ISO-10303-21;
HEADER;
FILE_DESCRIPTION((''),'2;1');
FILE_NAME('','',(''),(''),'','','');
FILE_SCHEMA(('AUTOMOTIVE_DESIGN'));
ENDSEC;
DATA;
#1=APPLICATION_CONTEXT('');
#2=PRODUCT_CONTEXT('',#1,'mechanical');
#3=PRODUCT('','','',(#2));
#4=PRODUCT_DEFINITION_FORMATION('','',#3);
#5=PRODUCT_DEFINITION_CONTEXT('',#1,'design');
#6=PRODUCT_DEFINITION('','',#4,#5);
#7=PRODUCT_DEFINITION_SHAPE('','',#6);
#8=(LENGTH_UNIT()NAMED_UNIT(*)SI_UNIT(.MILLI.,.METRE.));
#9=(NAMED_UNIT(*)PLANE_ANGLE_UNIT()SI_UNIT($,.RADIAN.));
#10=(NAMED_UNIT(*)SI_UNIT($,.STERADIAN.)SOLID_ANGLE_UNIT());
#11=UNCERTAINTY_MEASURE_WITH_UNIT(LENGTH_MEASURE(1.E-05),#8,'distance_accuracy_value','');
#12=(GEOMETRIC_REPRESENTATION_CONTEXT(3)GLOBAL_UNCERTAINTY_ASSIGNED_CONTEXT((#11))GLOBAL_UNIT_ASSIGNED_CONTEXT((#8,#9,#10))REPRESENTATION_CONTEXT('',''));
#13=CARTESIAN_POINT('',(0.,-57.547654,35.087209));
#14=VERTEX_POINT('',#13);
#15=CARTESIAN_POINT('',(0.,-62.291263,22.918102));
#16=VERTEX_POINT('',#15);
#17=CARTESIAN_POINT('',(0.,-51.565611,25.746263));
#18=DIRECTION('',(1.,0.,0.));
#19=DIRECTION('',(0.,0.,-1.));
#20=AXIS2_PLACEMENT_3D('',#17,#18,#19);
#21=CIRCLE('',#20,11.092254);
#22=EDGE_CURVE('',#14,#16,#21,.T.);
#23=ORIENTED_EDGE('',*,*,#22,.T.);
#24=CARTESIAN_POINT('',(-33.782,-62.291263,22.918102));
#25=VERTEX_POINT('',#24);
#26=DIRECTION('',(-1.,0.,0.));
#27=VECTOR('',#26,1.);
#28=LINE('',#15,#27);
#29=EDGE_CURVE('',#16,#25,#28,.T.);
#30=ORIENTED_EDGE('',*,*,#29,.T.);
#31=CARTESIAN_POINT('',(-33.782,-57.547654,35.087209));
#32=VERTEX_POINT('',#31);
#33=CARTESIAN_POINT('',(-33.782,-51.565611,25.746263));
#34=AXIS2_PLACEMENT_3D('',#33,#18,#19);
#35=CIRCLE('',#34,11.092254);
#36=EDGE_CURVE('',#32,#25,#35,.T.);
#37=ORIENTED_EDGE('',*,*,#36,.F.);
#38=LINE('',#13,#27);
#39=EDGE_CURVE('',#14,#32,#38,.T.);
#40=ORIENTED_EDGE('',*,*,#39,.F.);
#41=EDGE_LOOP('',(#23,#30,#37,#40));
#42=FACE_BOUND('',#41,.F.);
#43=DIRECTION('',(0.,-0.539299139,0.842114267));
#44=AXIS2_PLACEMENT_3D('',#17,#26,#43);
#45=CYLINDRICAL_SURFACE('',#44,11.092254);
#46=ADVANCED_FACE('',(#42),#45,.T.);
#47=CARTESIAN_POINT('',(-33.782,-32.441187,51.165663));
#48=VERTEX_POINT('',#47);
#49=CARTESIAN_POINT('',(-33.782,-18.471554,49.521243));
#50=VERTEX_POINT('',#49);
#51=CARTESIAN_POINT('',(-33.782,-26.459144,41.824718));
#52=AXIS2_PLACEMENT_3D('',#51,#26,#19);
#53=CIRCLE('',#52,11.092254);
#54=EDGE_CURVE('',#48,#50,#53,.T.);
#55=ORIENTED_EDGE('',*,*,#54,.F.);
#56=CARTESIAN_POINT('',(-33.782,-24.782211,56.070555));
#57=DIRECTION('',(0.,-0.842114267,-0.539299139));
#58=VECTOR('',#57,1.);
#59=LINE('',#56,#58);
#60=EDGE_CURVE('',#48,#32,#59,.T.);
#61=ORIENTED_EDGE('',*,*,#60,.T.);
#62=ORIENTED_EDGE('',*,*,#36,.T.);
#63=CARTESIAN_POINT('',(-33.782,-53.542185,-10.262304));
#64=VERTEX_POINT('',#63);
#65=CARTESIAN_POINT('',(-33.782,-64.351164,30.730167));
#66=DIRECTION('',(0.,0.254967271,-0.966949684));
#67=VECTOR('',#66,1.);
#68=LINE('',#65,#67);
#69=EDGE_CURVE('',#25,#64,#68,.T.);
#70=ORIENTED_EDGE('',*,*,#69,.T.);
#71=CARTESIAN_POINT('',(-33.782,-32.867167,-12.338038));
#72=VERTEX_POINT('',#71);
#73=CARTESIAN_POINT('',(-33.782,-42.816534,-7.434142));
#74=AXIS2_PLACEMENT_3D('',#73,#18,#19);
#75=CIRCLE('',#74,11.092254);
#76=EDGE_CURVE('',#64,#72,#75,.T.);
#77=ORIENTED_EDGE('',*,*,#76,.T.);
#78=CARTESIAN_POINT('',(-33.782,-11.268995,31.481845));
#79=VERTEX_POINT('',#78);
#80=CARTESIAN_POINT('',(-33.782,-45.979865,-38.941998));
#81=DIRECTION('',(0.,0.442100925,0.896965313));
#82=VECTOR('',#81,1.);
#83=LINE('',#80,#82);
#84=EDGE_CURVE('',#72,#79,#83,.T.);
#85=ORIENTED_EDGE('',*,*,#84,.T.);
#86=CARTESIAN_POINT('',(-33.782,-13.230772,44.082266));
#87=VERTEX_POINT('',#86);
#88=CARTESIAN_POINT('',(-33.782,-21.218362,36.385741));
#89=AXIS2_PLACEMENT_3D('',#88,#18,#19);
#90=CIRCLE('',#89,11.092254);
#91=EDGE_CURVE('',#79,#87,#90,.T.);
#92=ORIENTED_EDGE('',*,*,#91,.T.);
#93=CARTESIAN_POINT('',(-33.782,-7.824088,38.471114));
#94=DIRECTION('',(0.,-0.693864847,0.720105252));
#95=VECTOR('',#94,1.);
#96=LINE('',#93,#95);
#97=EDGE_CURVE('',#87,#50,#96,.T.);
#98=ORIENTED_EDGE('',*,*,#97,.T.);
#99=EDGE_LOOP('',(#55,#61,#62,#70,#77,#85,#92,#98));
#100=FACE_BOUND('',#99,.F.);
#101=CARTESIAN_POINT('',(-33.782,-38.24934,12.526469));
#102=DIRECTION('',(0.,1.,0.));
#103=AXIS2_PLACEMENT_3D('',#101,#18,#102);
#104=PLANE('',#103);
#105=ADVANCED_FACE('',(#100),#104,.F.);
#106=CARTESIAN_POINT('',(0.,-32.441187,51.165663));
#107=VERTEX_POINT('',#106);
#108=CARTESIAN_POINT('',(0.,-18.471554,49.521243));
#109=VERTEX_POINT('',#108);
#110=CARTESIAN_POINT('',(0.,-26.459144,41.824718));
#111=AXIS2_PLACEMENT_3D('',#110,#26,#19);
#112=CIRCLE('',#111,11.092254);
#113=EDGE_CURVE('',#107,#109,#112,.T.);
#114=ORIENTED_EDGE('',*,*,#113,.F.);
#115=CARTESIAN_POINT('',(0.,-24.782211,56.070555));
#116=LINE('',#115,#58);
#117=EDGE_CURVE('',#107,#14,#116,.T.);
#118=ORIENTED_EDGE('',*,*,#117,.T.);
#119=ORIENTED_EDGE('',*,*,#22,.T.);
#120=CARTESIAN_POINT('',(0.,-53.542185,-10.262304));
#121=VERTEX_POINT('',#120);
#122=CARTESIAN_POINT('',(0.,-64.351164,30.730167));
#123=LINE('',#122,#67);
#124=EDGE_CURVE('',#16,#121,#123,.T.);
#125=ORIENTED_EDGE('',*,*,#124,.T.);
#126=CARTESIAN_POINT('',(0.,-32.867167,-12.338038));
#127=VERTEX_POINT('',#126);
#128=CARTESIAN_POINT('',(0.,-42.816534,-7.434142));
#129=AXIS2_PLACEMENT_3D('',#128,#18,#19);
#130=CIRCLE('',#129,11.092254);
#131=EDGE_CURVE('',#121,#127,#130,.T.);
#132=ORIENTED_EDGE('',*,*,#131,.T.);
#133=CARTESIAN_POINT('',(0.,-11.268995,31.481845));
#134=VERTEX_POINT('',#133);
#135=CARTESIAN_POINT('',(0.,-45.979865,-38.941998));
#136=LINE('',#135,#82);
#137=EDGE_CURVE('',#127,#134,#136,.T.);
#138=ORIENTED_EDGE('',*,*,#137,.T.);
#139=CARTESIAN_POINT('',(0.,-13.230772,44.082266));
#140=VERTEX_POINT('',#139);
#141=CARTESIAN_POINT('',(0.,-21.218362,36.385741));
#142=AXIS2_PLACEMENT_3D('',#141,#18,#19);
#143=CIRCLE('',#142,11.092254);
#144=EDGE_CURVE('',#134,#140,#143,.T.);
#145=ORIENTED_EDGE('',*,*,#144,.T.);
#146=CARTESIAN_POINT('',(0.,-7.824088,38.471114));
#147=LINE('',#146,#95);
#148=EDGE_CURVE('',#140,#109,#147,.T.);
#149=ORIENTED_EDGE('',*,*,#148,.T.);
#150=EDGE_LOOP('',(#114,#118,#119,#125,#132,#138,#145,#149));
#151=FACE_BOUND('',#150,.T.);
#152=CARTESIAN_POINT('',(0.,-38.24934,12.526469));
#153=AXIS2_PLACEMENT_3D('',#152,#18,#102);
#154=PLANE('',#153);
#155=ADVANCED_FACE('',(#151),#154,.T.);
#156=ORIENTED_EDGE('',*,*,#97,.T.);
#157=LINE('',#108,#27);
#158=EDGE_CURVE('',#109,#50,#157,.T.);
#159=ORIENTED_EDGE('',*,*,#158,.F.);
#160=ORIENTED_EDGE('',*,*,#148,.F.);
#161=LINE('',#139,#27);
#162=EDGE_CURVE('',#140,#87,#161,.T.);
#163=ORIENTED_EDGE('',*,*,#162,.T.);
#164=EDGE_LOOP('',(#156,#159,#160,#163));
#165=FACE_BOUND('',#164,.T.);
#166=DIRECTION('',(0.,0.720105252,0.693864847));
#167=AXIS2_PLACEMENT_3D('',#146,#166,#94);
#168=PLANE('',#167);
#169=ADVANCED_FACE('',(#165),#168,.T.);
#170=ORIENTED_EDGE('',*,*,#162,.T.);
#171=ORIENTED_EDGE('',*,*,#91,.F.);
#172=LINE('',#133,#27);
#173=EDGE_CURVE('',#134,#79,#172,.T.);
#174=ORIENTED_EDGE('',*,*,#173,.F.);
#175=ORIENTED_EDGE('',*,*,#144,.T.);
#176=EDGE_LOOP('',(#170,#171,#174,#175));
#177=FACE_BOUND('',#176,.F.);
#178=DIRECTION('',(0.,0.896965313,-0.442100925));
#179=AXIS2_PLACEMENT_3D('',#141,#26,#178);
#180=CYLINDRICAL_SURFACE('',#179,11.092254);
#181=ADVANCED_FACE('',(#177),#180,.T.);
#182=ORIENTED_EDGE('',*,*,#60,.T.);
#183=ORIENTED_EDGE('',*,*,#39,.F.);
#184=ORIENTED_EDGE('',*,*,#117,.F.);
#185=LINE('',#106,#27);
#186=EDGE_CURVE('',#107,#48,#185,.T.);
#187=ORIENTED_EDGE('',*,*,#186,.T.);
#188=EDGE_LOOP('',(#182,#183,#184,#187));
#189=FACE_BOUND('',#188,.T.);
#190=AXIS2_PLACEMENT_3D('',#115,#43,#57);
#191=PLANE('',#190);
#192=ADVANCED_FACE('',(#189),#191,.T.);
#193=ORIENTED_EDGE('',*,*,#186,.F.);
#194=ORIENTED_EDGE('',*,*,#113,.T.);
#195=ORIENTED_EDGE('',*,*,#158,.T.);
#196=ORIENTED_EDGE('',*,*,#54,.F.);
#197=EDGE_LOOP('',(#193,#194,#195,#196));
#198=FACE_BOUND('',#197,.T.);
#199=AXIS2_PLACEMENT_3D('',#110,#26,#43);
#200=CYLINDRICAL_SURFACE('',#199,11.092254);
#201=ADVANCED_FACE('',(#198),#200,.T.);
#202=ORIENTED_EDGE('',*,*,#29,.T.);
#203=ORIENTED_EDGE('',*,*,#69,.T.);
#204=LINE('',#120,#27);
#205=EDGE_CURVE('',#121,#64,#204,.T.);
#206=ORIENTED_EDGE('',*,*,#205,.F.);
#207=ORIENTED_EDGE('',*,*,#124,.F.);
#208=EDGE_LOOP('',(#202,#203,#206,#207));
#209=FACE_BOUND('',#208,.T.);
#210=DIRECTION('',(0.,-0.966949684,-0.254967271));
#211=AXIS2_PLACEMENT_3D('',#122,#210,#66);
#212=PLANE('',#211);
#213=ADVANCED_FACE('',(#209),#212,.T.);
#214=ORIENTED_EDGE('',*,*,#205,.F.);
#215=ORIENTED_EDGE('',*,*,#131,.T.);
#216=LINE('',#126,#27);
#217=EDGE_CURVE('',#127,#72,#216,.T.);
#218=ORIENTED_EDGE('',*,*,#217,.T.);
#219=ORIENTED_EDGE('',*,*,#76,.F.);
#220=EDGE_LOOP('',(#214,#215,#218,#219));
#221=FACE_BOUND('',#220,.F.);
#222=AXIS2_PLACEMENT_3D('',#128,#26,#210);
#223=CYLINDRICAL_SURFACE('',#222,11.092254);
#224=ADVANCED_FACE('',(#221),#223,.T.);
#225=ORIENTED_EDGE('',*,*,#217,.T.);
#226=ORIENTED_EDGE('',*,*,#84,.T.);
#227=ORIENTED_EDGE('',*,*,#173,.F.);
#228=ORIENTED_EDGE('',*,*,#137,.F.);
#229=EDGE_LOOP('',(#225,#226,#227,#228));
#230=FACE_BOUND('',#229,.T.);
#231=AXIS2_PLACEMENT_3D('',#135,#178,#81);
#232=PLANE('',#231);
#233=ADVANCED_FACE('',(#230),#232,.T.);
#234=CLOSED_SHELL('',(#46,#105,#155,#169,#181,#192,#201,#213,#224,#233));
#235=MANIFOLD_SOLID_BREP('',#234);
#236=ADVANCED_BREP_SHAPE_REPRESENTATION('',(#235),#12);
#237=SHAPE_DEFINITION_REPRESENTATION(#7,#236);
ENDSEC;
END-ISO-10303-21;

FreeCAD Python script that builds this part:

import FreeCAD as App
import Part
import Sketcher

V = App.Vector


def edges_at(feature, points):
    """Names of the edges that pass closest to the given points."""
    edges = feature.Shape.Edges
    near = lambda p: min(range(len(edges)), key=lambda i: edges[i].distToShape(Part.Vertex(*p))[0])
    return sorted({f"Edge{near(p) + 1}" for p in points})

doc = App.newDocument("Part")
params = doc.addObject("Spreadsheet::Sheet", "Params")
for row, (alias, value) in enumerate([
    ("pad1_length", "1.33 in"),
    ("fillet_radius", "11.092254 mm"),
], start=1):
    params.set(f"A{row}", alias)
    params.set(f"B{row}", "=" + value)
    params.setAlias(f"B{row}", alias)

body = doc.addObject("PartDesign::Body", "Body")

# Sketch on YZ plane
sketch1 = body.newObject("Sketcher::SketchObject", "Sketch")
sketch1.AttachmentSupport = (doc.getObject("YZ_Plane"), [""])
sketch1.MapMode = "FlatFace"
sketch1.addGeometry([
    Part.LineSegment(V(-25, 56, 0), V(-64, 31, 0)),
    Part.LineSegment(V(-64, 31, 0), V(-46, -39, 0)),
    Part.LineSegment(V(-46, -39, 0), V(-8, 38, 0)),
    Part.LineSegment(V(-8, 38, 0), V(-25, 56, 0)),
], False)
sketch1.addConstraint([
    Sketcher.Constraint("Coincident", 0, 2, 1, 1),
    Sketcher.Constraint("Coincident", 1, 2, 2, 1),
    Sketcher.Constraint("Coincident", 2, 2, 3, 1),
    Sketcher.Constraint("Coincident", 3, 2, 0, 1),
    Sketcher.Constraint("DistanceX", 0, 2, 1, 2, 18.371299),
    Sketcher.Constraint("Distance", 0, 46.987629),
    Sketcher.Constraint("Distance", 2, 86.305581),
    Sketcher.Constraint("DistanceX", 3, 2, -1, 1, 24.782211),
    Sketcher.Constraint("DistanceY", 1, 2, 2, 2, 77.413112),
    Sketcher.Constraint("DistanceY", 2, 2, 3, 2, 17.599441),
    Sketcher.Constraint("Distance", 1, 72.053558),
    Sketcher.Constraint("DistanceY", -1, 1, 0, 2, 30.730167),
])
pad1 = body.newObject("PartDesign::Pad", "Pad")
pad1.Profile = sketch1
pad1.setExpression("Length", "Params.pad1_length")
pad1.Reversed = True
doc.recompute()

fillet = body.newObject("PartDesign::Fillet", "Fillet")
fillet.Base = (pad1, edges_at(pad1, [
    (-16.891, -24.782, 56.071),
    (-16.891, -7.824, 38.471),
    (-16.891, -64.351, 30.73),
    (-16.891, -45.98, -38.942),
]))
fillet.setExpression("Radius", "Params.fillet_radius")

doc.recompute()
